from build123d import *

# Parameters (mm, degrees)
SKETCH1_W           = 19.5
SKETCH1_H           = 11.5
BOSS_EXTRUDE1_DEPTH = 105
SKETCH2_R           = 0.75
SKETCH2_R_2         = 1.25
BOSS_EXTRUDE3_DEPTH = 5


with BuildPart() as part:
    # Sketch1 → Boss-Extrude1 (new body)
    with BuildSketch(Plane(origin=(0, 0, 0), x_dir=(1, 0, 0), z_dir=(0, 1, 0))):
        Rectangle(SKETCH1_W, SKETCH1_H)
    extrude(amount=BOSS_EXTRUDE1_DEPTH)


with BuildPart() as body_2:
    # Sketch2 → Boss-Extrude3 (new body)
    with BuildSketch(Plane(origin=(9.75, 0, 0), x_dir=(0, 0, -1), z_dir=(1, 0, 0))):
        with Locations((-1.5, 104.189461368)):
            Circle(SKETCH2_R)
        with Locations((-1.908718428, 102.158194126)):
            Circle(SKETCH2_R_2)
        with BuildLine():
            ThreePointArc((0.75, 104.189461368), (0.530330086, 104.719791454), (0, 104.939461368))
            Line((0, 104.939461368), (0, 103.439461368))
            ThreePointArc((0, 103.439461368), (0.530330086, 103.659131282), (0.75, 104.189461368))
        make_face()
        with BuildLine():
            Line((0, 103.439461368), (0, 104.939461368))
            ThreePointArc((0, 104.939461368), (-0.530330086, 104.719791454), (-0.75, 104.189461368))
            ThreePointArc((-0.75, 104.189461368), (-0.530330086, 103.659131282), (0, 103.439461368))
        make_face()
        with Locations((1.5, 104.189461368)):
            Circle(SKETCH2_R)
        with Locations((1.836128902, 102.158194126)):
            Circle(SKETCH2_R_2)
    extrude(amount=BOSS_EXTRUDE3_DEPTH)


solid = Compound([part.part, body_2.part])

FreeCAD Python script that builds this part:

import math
import FreeCAD as App
import Part
import Sketcher
from FreeCAD import Vector
Q = App.Units.Quantity


def add_polygon(sketch, points):
    """Adds a closed chain of lines whose ends are joined by coincident constraints."""
    first, n = sketch.GeometryCount, len(points)
    for a, b in zip(points, points[1:] + points[:1]):
        sketch.addGeometry(Part.LineSegment(App.Vector(*a, 0), App.Vector(*b, 0)), False)
    for i in range(n):
        sketch.addConstraint(Sketcher.Constraint("Coincident", first + i, 2, first + (i + 1) % n, 1))

doc = App.newDocument("Part")
body = doc.addObject("PartDesign::Body", "Body")

# Sketch on XZ plane
sketch1 = body.newObject("Sketcher::SketchObject", "Sketch")
sketch1.AttachmentSupport = (doc.getObject("XZ_Plane"), [""])
sketch1.MapMode = "FlatFace"
add_polygon(sketch1, [(-10, -6), (-10, 6), (10, 6), (10, -6)])  # lines 0-3
sketch1.addConstraint([
    Sketcher.Constraint("Vertical", 0),
    Sketcher.Constraint("Horizontal", 1),
    Sketcher.Constraint("Vertical", 2),
    Sketcher.Constraint("Horizontal", 3),
    Sketcher.Constraint("Symmetric", 0, 2, 2, 2, -1, 1),
    Sketcher.Constraint("DistanceX", 1, 1, 1, 2, Q("19.5 mm")),
    Sketcher.Constraint("DistanceY", 0, 1, 0, 2, Q("11.5 mm")),
])
pad1 = body.newObject("PartDesign::Pad", "Pad")
pad1.Profile = sketch1
pad1.Length = 105
pad1.Reversed = True
body2 = doc.addObject("PartDesign::Body", "Body001")
body2.AllowCompound = True

# Sketch on YZ plane
sketch2 = body2.newObject("Sketcher::SketchObject", "Sketch001")
sketch2.AttachmentSupport = (doc.getObject("YZ_Plane001"), [""])
sketch2.MapMode = "FlatFace"
sketch2.AttachmentOffset = App.Placement(Vector(0, 0, 9.75), App.Rotation())
sketch2.addGeometry([
    Part.Circle(Vector(104.2, 1.5, 0), Vector(0, 0, 1), 0.8),  # 0
    Part.Circle(Vector(102.2, 1.9, 0), Vector(0, 0, 1), 1.2),  # 1
    Part.ArcOfCircle(Part.Circle(Vector(104.2, 0, 0), Vector(0, 0, 1), 0.8), math.radians(-90), math.radians(0)),  # 2
    Part.ArcOfCircle(Part.Circle(Vector(104.2, 0, 0), Vector(0, 0, 1), 0.8), math.radians(0), math.radians(90)),  # 3
    Part.ArcOfCircle(Part.Circle(Vector(104.2, 0, 0), Vector(0, 0, 1), 0.8), math.radians(90), math.radians(180)),  # 4
    Part.ArcOfCircle(Part.Circle(Vector(104.2, 0, 0), Vector(0, 0, 1), 0.8), math.radians(180), math.radians(270)),  # 5
    Part.Circle(Vector(104.2, -1.5, 0), Vector(0, 0, 1), 0.8),  # 6
    Part.Circle(Vector(102.2, -1.8, 0), Vector(0, 0, 1), 1.2),  # 7
], False)
sketch2.addConstraint([
    Sketcher.Constraint("Tangent", 2, 2, 3, 1),
    Sketcher.Constraint("Tangent", 3, 2, 4, 1),
    Sketcher.Constraint("Tangent", 4, 2, 5, 1),
    Sketcher.Constraint("Tangent", 5, 2, 2, 1),
    Sketcher.Constraint("Equal", 0, 2),
    Sketcher.Constraint("Equal", 2, 3),
    Sketcher.Constraint("Equal", 5, 6),
    Sketcher.Constraint("Equal", 1, 7),
    Sketcher.Constraint("Symmetric", 0, 3, 6, 3, -1),
    Sketcher.Constraint("Symmetric", 3, 2, 5, 2, -1),
    Sketcher.Constraint("PointOnObject", 2, 2, -1),
    Sketcher.Constraint("PointOnObject", 4, 2, -1),
    Sketcher.Constraint("Vertical", 0, 3, 2, 3),
    Sketcher.Constraint("Vertical", 1, 3, 7, 3),
    Sketcher.Constraint("Vertical", 6, 3, 3, 2),
    Sketcher.Constraint("Diameter", 0, Q("1.5 mm")),
    Sketcher.Constraint("Diameter", 1, Q("2.5 mm")),
    Sketcher.Constraint("DistanceY", 6, 3, 0, 3, Q("3 mm")),
    Sketcher.Constraint("DistanceX", -1, 1, 0, 3, Q("104.189461 mm")),
    Sketcher.Constraint("DistanceY", -1, 1, 1, 3, Q("1.908718 mm")),
    Sketcher.Constraint("DistanceY", 7, 3, -1, 1, Q("1.836129 mm")),
    Sketcher.Constraint("DistanceX", -1, 1, 1, 3, Q("102.158194 mm")),
])
pad2 = body2.newObject("PartDesign::Pad", "Pad001")
pad2.Profile = sketch2
pad2.Length = 5

doc.recompute()
